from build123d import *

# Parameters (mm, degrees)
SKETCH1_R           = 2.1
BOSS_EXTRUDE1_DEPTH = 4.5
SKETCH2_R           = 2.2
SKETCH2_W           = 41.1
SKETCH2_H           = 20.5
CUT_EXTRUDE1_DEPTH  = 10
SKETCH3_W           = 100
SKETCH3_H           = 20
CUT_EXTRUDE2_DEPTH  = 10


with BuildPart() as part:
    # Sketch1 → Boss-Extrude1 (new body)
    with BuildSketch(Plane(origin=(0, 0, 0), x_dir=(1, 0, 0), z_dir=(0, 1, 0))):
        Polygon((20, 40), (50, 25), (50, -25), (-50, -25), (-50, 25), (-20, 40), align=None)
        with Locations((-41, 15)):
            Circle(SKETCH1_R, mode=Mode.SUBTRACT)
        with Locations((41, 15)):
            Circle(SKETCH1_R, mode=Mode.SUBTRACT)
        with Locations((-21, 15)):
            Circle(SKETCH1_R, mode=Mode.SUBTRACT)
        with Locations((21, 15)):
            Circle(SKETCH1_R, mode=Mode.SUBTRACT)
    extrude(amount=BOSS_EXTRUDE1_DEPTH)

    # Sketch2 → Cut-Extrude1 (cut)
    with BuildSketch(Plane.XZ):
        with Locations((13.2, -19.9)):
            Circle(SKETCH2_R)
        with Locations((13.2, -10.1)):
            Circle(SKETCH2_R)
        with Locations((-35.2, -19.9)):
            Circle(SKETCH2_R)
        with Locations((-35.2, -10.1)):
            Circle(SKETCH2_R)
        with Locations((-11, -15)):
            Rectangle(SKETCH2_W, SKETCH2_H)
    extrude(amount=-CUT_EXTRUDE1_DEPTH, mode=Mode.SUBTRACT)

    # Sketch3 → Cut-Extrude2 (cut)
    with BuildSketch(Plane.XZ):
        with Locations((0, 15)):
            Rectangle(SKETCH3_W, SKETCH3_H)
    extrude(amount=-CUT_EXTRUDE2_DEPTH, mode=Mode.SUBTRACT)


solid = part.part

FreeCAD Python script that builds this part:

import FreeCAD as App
import Part
import Sketcher


def add_polygon(sketch, points):
    """Adds a closed chain of lines whose ends are joined by coincident constraints."""
    first, n = sketch.GeometryCount, len(points)
    for a, b in zip(points, points[1:] + points[:1]):
        sketch.addGeometry(Part.LineSegment(App.Vector(*a, 0), App.Vector(*b, 0)), False)
    for i in range(n):
        sketch.addConstraint(Sketcher.Constraint("Coincident", first + i, 2, first + (i + 1) % n, 1))

doc = App.newDocument("Part")
body = doc.addObject("PartDesign::Body", "Body")

# Sketch on XZ plane
sketch1 = body.newObject("Sketcher::SketchObject", "Sketch")
sketch1.AttachmentSupport = (doc.getObject("XZ_Plane"), [""])
sketch1.MapMode = "FlatFace"
add_polygon(sketch1, [(50, -25), (20, -40), (-20, -40), (-50, -25), (-50, 25), (50, 25)])  # lines 0-5
sketch1.addGeometry(Part.Circle(App.Vector(41, -15, 0), App.Vector(0, 0, 1), 2.1), False)  # 6
sketch1.addGeometry(Part.Circle(App.Vector(21, -15, 0), App.Vector(0, 0, 1), 2.1), False)  # 7
sketch1.addGeometry(Part.Circle(App.Vector(-21, -15, 0), App.Vector(0, 0, 1), 2.1), False)  # 8
sketch1.addGeometry(Part.Circle(App.Vector(-41, -15, 0), App.Vector(0, 0, 1), 2.1), False)  # 9
sketch1.addConstraint([
    Sketcher.Constraint("Horizontal", 1),
    Sketcher.Constraint("Vertical", 3),
    Sketcher.Constraint("Horizontal", 4),
    Sketcher.Constraint("Vertical", 5),
    Sketcher.Constraint("Equal", 6, 7),
    Sketcher.Constraint("Equal", 7, 8),
    Sketcher.Constraint("Equal", 8, 9),
    Sketcher.Constraint("Symmetric", 2, 2, 4, 2, -1, 1),
    Sketcher.Constraint("Symmetric", 7, 3, 8, 3, -2),
    Sketcher.Constraint("Symmetric", 6, 3, 9, 3, -2),
    Sketcher.Constraint("Horizontal", 6, 3, 7, 3),
    Sketcher.Constraint("Horizontal", 2, 2, 5, 2),
    Sketcher.Constraint("Equal", 0, 2),
    Sketcher.Constraint("Diameter", 6, 4.2),
    Sketcher.Constraint("DistanceX", 1, 2, 1, 1, 40.0),
    Sketcher.Constraint("DistanceX", 4, 1, 4, 2, 100.0),
    Sketcher.Constraint("DistanceY", 3, 1, 3, 2, 50.0),
    Sketcher.Constraint("DistanceX", -1, 1, 6, 3, 41.0),
    Sketcher.Constraint("DistanceY", 6, 3, -1, 1, 15.0),
    Sketcher.Constraint("DistanceX", -1, 1, 7, 3, 21.0),
    Sketcher.Constraint("DistanceY", 0, 2, -1, 1, 40.0),
])
pad1 = body.newObject("PartDesign::Pad", "Pad")
pad1.Profile = sketch1
pad1.Length = 4.5
pad1.Reversed = True

# Sketch on XZ plane
sketch2 = body.newObject("Sketcher::SketchObject", "Sketch001")
sketch2.AttachmentSupport = (doc.getObject("XZ_Plane"), [""])
sketch2.MapMode = "FlatFace"
sketch2.addGeometry(Part.Circle(App.Vector(13.2, -19.9, 0), App.Vector(0, 0, 1), 2.2), False)  # 0
sketch2.addGeometry(Part.Circle(App.Vector(13.2, -10.1, 0), App.Vector(0, 0, 1), 2.2), False)  # 1
sketch2.addGeometry(Part.Circle(App.Vector(-35.2, -19.9, 0), App.Vector(0, 0, 1), 2.2), False)  # 2
sketch2.addGeometry(Part.Circle(App.Vector(-35.2, -10.1, 0), App.Vector(0, 0, 1), 2.2), False)  # 3
add_polygon(sketch2, [(-31.55, -4.75), (-31.55, -25.25), (9.55, -25.25), (9.55, -4.75)])  # lines 4-7
sketch2.addConstraint([
    Sketcher.Constraint("Vertical", 4),
    Sketcher.Constraint("Horizontal", 5),
    Sketcher.Constraint("Vertical", 6),
    Sketcher.Constraint("Horizontal", 7),
    Sketcher.Constraint("Equal", 0, 1),
    Sketcher.Constraint("Equal", 1, 2),
    Sketcher.Constraint("Equal", 2, 3),
    Sketcher.Constraint("Horizontal", 0, 3, 2, 3),
    Sketcher.Constraint("Horizontal", 1, 3, 3, 3),
    Sketcher.Constraint("Vertical", 0, 3, 1, 3),
    Sketcher.Constraint("Vertical", 2, 3, 3, 3),
    Sketcher.Constraint("Diameter", 0, 4.4),
    Sketcher.Constraint("DistanceX", 5, 1, 5, 2, 41.1),
    Sketcher.Constraint("DistanceY", 4, 2, 4, 1, 20.5),
    Sketcher.Constraint("DistanceX", -1, 1, 0, 3, 13.2),
    Sketcher.Constraint("DistanceY", 0, 3, -1, 1, 19.9),
    Sketcher.Constraint("DistanceY", 1, 3, -1, 1, 10.1),
    Sketcher.Constraint("DistanceX", 2, 3, -1, 1, 35.2),
    Sketcher.Constraint("DistanceX", 4, 2, -1, 1, 31.55),
    Sketcher.Constraint("DistanceY", 4, 2, -1, 1, 25.25),
])
pocket1 = body.newObject("PartDesign::Pocket", "Pocket")
pocket1.Profile = sketch2
pocket1.Length = 10

# Sketch on XZ plane
sketch3 = body.newObject("Sketcher::SketchObject", "Sketch002")
sketch3.AttachmentSupport = (doc.getObject("XZ_Plane"), [""])
sketch3.MapMode = "FlatFace"
add_polygon(sketch3, [(-50, 25), (-50, 5), (50, 5), (50, 25)])  # lines 0-3
sketch3.addConstraint([
    Sketcher.Constraint("Vertical", 0),
    Sketcher.Constraint("Horizontal", 1),
    Sketcher.Constraint("Vertical", 2),
    Sketcher.Constraint("Horizontal", 3),
    Sketcher.Constraint("DistanceX", 1, 1, 1, 2, 100.0),
    Sketcher.Constraint("DistanceY", 0, 2, 0, 1, 20.0),
    Sketcher.Constraint("DistanceX", 0, 2, -1, 1, 50.0),
    Sketcher.Constraint("DistanceY", -1, 1, 0, 2, 5.0),
])
pocket2 = body.newObject("PartDesign::Pocket", "Pocket001")
pocket2.Profile = sketch3
pocket2.Length = 10

doc.recompute()
